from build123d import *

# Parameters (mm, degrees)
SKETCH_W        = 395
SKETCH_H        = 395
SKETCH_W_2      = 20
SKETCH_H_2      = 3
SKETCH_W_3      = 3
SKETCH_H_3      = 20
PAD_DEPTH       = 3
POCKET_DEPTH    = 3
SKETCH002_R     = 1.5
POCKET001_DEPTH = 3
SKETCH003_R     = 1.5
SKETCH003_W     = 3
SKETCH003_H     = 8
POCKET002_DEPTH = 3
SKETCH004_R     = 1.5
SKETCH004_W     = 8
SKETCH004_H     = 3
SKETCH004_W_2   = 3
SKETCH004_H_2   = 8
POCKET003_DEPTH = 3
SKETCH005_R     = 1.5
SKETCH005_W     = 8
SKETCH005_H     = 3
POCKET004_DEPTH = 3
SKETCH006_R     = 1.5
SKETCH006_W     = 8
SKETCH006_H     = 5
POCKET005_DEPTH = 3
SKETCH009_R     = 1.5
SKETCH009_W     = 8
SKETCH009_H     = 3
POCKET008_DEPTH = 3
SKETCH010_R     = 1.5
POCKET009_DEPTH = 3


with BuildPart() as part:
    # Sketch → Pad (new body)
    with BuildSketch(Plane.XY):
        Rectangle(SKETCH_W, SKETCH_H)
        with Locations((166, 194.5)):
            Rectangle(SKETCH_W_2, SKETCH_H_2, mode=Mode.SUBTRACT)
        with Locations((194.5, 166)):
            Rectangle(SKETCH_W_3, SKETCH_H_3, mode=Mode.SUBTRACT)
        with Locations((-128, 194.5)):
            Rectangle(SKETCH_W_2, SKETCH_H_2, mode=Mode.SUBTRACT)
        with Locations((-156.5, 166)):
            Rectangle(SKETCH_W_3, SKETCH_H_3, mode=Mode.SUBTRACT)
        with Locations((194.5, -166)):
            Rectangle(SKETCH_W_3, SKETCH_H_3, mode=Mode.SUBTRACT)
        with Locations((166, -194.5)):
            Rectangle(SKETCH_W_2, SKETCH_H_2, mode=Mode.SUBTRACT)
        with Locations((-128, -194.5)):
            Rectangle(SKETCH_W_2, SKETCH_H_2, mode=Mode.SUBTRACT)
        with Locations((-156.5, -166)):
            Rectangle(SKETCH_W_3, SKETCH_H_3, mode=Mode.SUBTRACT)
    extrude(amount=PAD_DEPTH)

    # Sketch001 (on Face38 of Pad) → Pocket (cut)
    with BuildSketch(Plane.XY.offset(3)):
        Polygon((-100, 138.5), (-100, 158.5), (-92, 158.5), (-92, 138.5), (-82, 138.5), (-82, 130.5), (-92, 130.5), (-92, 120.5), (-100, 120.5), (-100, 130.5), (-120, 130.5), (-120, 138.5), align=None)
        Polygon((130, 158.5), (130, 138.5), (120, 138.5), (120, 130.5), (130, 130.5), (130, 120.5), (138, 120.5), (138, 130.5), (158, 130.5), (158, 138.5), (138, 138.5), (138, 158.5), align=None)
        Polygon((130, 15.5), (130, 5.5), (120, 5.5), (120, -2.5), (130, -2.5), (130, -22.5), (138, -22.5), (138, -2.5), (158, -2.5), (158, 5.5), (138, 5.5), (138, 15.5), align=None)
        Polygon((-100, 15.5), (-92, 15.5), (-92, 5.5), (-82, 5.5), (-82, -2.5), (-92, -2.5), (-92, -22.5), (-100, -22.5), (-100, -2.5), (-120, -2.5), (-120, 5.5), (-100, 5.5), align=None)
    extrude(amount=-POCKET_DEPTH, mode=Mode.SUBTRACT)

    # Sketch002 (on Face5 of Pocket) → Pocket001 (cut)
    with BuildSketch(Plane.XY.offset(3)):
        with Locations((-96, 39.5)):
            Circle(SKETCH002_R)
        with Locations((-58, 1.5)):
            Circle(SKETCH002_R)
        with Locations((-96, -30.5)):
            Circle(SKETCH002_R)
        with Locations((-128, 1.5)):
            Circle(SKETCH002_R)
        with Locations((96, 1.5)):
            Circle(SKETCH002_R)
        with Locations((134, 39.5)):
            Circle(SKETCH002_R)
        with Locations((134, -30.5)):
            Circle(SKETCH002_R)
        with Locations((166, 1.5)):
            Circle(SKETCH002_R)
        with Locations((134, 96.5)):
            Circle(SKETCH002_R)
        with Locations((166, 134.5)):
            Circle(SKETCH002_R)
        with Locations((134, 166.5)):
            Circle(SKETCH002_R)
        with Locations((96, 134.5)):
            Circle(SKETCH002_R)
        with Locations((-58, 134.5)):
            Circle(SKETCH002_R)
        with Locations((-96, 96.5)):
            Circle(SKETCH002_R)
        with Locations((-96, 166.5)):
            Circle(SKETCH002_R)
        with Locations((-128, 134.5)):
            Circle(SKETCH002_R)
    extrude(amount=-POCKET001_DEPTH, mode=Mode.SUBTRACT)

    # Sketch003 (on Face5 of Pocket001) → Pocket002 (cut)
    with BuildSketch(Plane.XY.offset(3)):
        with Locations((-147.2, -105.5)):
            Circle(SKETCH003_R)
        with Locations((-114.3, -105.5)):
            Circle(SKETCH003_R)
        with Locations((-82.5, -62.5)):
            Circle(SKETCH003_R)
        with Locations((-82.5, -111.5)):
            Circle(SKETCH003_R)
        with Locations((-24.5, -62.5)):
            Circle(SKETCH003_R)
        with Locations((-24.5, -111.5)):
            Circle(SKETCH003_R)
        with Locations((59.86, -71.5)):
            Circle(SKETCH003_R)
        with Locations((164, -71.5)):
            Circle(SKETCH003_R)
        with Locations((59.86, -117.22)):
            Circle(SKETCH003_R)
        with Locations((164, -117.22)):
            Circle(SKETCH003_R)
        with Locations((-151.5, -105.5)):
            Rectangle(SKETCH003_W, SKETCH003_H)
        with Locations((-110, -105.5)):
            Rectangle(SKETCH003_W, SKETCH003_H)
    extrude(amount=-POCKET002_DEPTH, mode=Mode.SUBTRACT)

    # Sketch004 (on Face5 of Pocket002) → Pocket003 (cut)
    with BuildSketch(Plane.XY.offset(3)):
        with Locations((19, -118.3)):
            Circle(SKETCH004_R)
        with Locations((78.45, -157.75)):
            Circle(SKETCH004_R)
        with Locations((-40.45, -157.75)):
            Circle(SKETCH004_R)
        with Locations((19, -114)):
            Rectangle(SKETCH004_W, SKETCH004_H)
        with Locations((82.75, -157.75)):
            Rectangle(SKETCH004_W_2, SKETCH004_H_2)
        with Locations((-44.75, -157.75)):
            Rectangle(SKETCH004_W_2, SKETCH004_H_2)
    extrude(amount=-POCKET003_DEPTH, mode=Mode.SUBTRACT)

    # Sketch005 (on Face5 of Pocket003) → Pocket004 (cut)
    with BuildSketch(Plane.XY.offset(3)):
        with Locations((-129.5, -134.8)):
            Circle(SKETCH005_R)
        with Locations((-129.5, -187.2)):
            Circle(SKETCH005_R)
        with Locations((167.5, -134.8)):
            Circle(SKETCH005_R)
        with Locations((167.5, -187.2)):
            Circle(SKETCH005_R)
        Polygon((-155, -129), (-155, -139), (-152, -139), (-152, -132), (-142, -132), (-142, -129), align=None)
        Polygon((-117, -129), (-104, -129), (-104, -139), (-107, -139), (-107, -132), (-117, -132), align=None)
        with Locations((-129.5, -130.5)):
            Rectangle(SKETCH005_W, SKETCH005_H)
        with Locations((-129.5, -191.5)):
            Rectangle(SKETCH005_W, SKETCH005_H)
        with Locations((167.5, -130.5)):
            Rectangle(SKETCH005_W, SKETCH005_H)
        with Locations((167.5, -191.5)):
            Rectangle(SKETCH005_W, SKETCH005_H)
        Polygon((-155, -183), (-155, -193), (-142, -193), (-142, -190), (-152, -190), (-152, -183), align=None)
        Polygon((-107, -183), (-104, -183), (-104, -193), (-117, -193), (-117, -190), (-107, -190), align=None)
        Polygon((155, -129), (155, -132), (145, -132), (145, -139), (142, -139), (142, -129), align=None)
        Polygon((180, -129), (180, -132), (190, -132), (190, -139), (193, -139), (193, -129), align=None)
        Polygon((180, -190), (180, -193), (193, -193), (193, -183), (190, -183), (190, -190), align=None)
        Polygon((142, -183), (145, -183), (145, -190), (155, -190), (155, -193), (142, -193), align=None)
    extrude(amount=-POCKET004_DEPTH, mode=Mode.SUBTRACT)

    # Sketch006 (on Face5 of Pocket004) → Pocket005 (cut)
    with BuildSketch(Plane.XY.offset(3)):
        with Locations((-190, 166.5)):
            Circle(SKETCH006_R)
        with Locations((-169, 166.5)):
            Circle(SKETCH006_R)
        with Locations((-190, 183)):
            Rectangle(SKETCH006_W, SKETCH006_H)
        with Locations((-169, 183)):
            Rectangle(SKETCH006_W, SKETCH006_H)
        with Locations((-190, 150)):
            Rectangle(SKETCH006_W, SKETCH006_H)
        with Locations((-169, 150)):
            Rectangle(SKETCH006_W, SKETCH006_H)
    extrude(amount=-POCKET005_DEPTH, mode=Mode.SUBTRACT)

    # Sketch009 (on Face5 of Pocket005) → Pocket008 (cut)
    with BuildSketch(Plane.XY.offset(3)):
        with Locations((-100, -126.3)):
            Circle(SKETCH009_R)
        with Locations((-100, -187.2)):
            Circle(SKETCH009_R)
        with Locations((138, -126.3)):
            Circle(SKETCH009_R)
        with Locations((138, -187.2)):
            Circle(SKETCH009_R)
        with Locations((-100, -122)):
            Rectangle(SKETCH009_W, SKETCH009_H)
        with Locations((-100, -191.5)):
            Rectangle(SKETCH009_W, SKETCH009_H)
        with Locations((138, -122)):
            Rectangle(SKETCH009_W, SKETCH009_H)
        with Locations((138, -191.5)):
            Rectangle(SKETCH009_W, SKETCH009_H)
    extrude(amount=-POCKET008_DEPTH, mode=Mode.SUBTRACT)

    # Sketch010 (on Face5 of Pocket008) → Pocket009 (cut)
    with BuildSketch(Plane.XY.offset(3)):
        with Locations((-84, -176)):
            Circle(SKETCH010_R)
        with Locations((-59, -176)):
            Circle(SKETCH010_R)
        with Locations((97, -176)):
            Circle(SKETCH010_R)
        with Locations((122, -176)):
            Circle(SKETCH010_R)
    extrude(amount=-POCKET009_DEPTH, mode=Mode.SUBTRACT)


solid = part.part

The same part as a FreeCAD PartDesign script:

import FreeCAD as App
import Part
import Sketcher
from FreeCAD import Vector


def add_polygon(sketch, points):
    """Adds a closed chain of lines whose ends are joined by coincident constraints."""
    first, n = sketch.GeometryCount, len(points)
    for a, b in zip(points, points[1:] + points[:1]):
        sketch.addGeometry(Part.LineSegment(App.Vector(*a, 0), App.Vector(*b, 0)), False)
    for i in range(n):
        sketch.addConstraint(Sketcher.Constraint("Coincident", first + i, 2, first + (i + 1) % n, 1))

doc = App.newDocument("Part")
params = doc.addObject("Spreadsheet::Sheet", "Params")
for row, (alias, value) in enumerate([
    ("sketch1_width", "395 mm"),
    ("sketch1_width2", "20 mm"),
    ("sketch1_width3", "3 mm"),
    ("pad1_length", "3 mm"),
    ("sketch2_width", "20 mm"),
    ("sketch2_width2", "8 mm"),
    ("sketch2_width3", "10 mm"),
    ("pocket1_length", "3 mm"),
    ("sketch3_diameter", "3 mm"),
    ("pocket2_length", "3 mm"),
    ("sketch4_diameter", "3 mm"),
    ("sketch4_width", "3 mm"),
    ("sketch4_height", "8 mm"),
    ("pocket3_length", "3 mm"),
    ("sketch5_diameter", "3 mm"),
    ("sketch5_width", "8 mm"),
    ("sketch5_width2", "3 mm"),
    ("pocket4_length", "3 mm"),
    ("sketch6_diameter", "3 mm"),
    ("sketch6_width", "3 mm"),
    ("sketch6_width2", "10 mm"),
    ("sketch6_width3", "8 mm"),
    ("pocket5_length", "3 mm"),
    ("sketch7_diameter", "3 mm"),
    ("sketch7_width", "8 mm"),
    ("sketch7_height", "5 mm"),
    ("pocket6_length", "3 mm"),
    ("sketch8_diameter", "3 mm"),
    ("sketch8_width", "8 mm"),
    ("sketch8_height", "3 mm"),
    ("pocket7_length", "3 mm"),
    ("sketch9_diameter", "3 mm"),
    ("pocket8_length", "3 mm"),
], start=1):
    params.set(f"A{row}", alias)
    params.set(f"B{row}", "=" + value)
    params.setAlias(f"B{row}", alias)

body = doc.addObject("PartDesign::Body", "Body")

sketch1 = body.newObject("Sketcher::SketchObject", "Sketch")
sketch1.AttachmentSupport = (doc.getObject("XY_Plane"), [""])
sketch1.MapMode = "FlatFace"
add_polygon(sketch1, [(-197.5, 197.5), (-197.5, -197.5), (197.5, -197.5), (197.5, 197.5)])
add_polygon(sketch1, [(-118, -196), (-138, -196), (-138, -193), (-118, -193)])
add_polygon(sketch1, [(-155, -176), (-158, -176), (-158, -156), (-155, -156)])
add_polygon(sketch1, [(176, -196), (156, -196), (156, -193), (176, -193)])
add_polygon(sketch1, [(196, -176), (193, -176), (193, -156), (196, -156)])
add_polygon(sketch1, [(-155, 156), (-158, 156), (-158, 176), (-155, 176)])
add_polygon(sketch1, [(-118, 193), (-138, 193), (-138, 196), (-118, 196)])
add_polygon(sketch1, [(196, 156), (193, 156), (193, 176), (196, 176)])
add_polygon(sketch1, [(176, 193), (156, 193), (156, 196), (176, 196)])
sketch1.addConstraint([
    Sketcher.Constraint("Vertical", 0),
    Sketcher.Constraint("Horizontal", 1),
    Sketcher.Constraint("Vertical", 2),
    Sketcher.Constraint("Horizontal", 3),
    Sketcher.Constraint("Horizontal", 4),
    Sketcher.Constraint("Vertical", 5),
    Sketcher.Constraint("Horizontal", 6),
    Sketcher.Constraint("Vertical", 7),
    Sketcher.Constraint("Horizontal", 8),
    Sketcher.Constraint("Vertical", 9),
    Sketcher.Constraint("Horizontal", 10),
    Sketcher.Constraint("Vertical", 11),
    Sketcher.Constraint("Horizontal", 12),
    Sketcher.Constraint("Vertical", 13),
    Sketcher.Constraint("Horizontal", 14),
    Sketcher.Constraint("Vertical", 15),
    Sketcher.Constraint("Horizontal", 16),
    Sketcher.Constraint("Vertical", 17),
    Sketcher.Constraint("Horizontal", 18),
    Sketcher.Constraint("Vertical", 19),
    Sketcher.Constraint("Horizontal", 20),
    Sketcher.Constraint("Vertical", 21),
    Sketcher.Constraint("Horizontal", 22),
    Sketcher.Constraint("Vertical", 23),
    Sketcher.Constraint("Horizontal", 24),
    Sketcher.Constraint("Vertical", 25),
    Sketcher.Constraint("Horizontal", 26),
    Sketcher.Constraint("Vertical", 27),
    Sketcher.Constraint("Horizontal", 28),
    Sketcher.Constraint("Vertical", 29),
    Sketcher.Constraint("Horizontal", 30),
    Sketcher.Constraint("Vertical", 31),
    Sketcher.Constraint("Horizontal", 32),
    Sketcher.Constraint("Vertical", 33),
    Sketcher.Constraint("Horizontal", 34),
    Sketcher.Constraint("Vertical", 35),
    Sketcher.Constraint("Symmetric", 0, 2, 2, 2, -1, 1),
    Sketcher.Constraint("Symmetric", 9, 2, 20, 2, -1),
    Sketcher.Constraint("Symmetric", 11, 2, 22, 2, -1),
    Sketcher.Constraint("Symmetric", 5, 2, 24, 2, -1),
    Sketcher.Constraint("Symmetric", 7, 2, 26, 2, -1),
    Sketcher.Constraint("Symmetric", 17, 2, 28, 2, -1),
    Sketcher.Constraint("Symmetric", 19, 2, 30, 2, -1),
    Sketcher.Constraint("Symmetric", 13, 2, 32, 2, -1),
    Sketcher.Constraint("Symmetric", 15, 2, 34, 2, -1),
    Sketcher.Constraint("Horizontal", 7, 2, 12, 2),
    Sketcher.Constraint("Horizontal", 6, 2, 13, 2),
    Sketcher.Constraint("Horizontal", 11, 2, 16, 2),
    Sketcher.Constraint("Horizontal", 10, 2, 17, 2),
    Sketcher.Constraint("Equal", 6, 12),
    Sketcher.Constraint("Equal", 10, 16),
    Sketcher.Constraint("Equal", 3, 0),
    Sketcher.Constraint("Equal", 30, 5),
    Sketcher.Constraint("Equal", 34, 9),
    Sketcher.Constraint("DistanceX", 1, 1, 1, 2, 395.0),
    Sketcher.Constraint("DistanceX", 4, 2, 4, 1, 20.0),
    Sketcher.Constraint("DistanceX", 8, 2, 8, 1, 3.0),
    Sketcher.Constraint("DistanceX", 4, 2, -1, 1, 138.0),
    Sketcher.Constraint("DistanceY", 4, 2, -1, 1, 196.0),
    Sketcher.Constraint("DistanceX", 8, 2, -1, 1, 158.0),
    Sketcher.Constraint("DistanceY", 8, 2, -1, 1, 176.0),
    Sketcher.Constraint("DistanceX", -1, 1, 12, 2, 156.0),
    Sketcher.Constraint("DistanceX", -1, 1, 16, 2, 193.0),
])
sketch1.setExpression("Constraints[90]", "Params.sketch1_width")
sketch1.setExpression("Constraints[91]", "Params.sketch1_width2")
sketch1.setExpression("Constraints[92]", "Params.sketch1_width3")
pad1 = body.newObject("PartDesign::Pad", "Pad")
pad1.Profile = sketch1
pad1.setExpression("Length", "Params.pad1_length")

sketch2 = body.newObject("Sketcher::SketchObject", "Sketch001")
sketch2.AttachmentSupport = (doc.getObject("XY_Plane"), [""])
sketch2.MapMode = "FlatFace"
sketch2.AttachmentOffset = App.Placement(Vector(0, 0, 3), App.Rotation())
add_polygon(sketch2, [(-100, 158.5), (-100, 138.5), (-120, 138.5), (-120, 130.5), (-100, 130.5), (-100, 120.5), (-92, 120.5), (-92, 130.5), (-82, 130.5), (-82, 138.5), (-92, 138.5), (-92, 158.5)])
add_polygon(sketch2, [(130, 158.5), (130, 138.5), (120, 138.5), (120, 130.5), (130, 130.5), (130, 120.5), (138, 120.5), (138, 130.5), (158, 130.5), (158, 138.5), (138, 138.5), (138, 158.5)])
add_polygon(sketch2, [(130, 15.5), (130, 5.5), (120, 5.5), (120, -2.5), (130, -2.5), (130, -22.5), (138, -22.5), (138, -2.5), (158, -2.5), (158, 5.5), (138, 5.5), (138, 15.5)])
add_polygon(sketch2, [(-92, 15.5), (-100, 15.5), (-100, 5.5), (-120, 5.5), (-120, -2.5), (-100, -2.5), (-100, -22.5), (-92, -22.5), (-92, -2.5), (-82, -2.5), (-82, 5.5), (-92, 5.5)])
sketch2.addConstraint([
    Sketcher.Constraint("Vertical", 0),
    Sketcher.Constraint("Horizontal", 1),
    Sketcher.Constraint("Vertical", 2),
    Sketcher.Constraint("Horizontal", 3),
    Sketcher.Constraint("Vertical", 4),
    Sketcher.Constraint("Horizontal", 5),
    Sketcher.Constraint("Vertical", 6),
    Sketcher.Constraint("Horizontal", 7),
    Sketcher.Constraint("Vertical", 8),
    Sketcher.Constraint("Horizontal", 9),
    Sketcher.Constraint("Vertical", 10),
    Sketcher.Constraint("Horizontal", 11),
    Sketcher.Constraint("Vertical", 12),
    Sketcher.Constraint("Horizontal", 13),
    Sketcher.Constraint("Vertical", 14),
    Sketcher.Constraint("Horizontal", 15),
    Sketcher.Constraint("Vertical", 16),
    Sketcher.Constraint("Horizontal", 17),
    Sketcher.Constraint("Vertical", 18),
    Sketcher.Constraint("Horizontal", 19),
    Sketcher.Constraint("Vertical", 20),
    Sketcher.Constraint("Horizontal", 21),
    Sketcher.Constraint("Vertical", 22),
    Sketcher.Constraint("Horizontal", 23),
    Sketcher.Constraint("Vertical", 24),
    Sketcher.Constraint("Horizontal", 25),
    Sketcher.Constraint("Vertical", 26),
    Sketcher.Constraint("Horizontal", 27),
    Sketcher.Constraint("Vertical", 28),
    Sketcher.Constraint("Horizontal", 29),
    Sketcher.Constraint("Vertical", 30),
    Sketcher.Constraint("Horizontal", 31),
    Sketcher.Constraint("Vertical", 32),
    Sketcher.Constraint("Horizontal", 33),
    Sketcher.Constraint("Vertical", 34),
    Sketcher.Constraint("Horizontal", 35),
    Sketcher.Constraint("Horizontal", 36),
    Sketcher.Constraint("Vertical", 37),
    Sketcher.Constraint("Horizontal", 38),
    Sketcher.Constraint("Vertical", 39),
    Sketcher.Constraint("Horizontal", 40),
    Sketcher.Constraint("Vertical", 41),
    Sketcher.Constraint("Horizontal", 42),
    Sketcher.Constraint("Vertical", 43),
    Sketcher.Constraint("Horizontal", 44),
    Sketcher.Constraint("Vertical", 45),
    Sketcher.Constraint("Horizontal", 46),
    Sketcher.Constraint("Vertical", 47),
    Sketcher.Constraint("Symmetric", 1, 2, 13, 2, -2),
    Sketcher.Constraint("Symmetric", 25, 2, 38, 2, -2),
    Sketcher.Constraint("Horizontal", 3, 2, 6, 2),
    Sketcher.Constraint("Horizontal", 1, 2, 8, 2),
    Sketcher.Constraint("Horizontal", 7, 2, 14, 2),
    Sketcher.Constraint("Horizontal", 5, 2, 16, 2),
    Sketcher.Constraint("Horizontal", 15, 2, 18, 2),
    Sketcher.Constraint("Horizontal", 13, 2, 20, 2),
    Sketcher.Constraint("Horizontal", 11, 2, 22, 2),
    Sketcher.Constraint("Horizontal", 27, 2, 30, 2),
    Sketcher.Constraint("Horizontal", 25, 2, 32, 2),
    Sketcher.Constraint("Horizontal", 35, 2, 36, 2),
    Sketcher.Constraint("Horizontal", 31, 2, 39, 2),
    Sketcher.Constraint("Horizontal", 29, 2, 41, 2),
    Sketcher.Constraint("Horizontal", 40, 2, 43, 2),
    Sketcher.Constraint("Horizontal", 38, 2, 45, 2),
    Sketcher.Constraint("Vertical", 0, 2, 3, 2),
    Sketcher.Constraint("Vertical", 6, 2, 9, 2),
    Sketcher.Constraint("Vertical", 12, 2, 15, 2),
    Sketcher.Constraint("Vertical", 18, 2, 21, 2),
    Sketcher.Constraint("Vertical", 23, 2, 24, 2),
    Sketcher.Constraint("Vertical", 14, 2, 25, 2),
    Sketcher.Constraint("Vertical", 24, 2, 27, 2),
    Sketcher.Constraint("Vertical", 22, 2, 29, 2),
    Sketcher.Constraint("Vertical", 20, 2, 31, 2),
    Sketcher.Constraint("Vertical", 30, 2, 33, 2),
    Sketcher.Constraint("Vertical", 11, 2, 36, 2),
    Sketcher.Constraint("Vertical", 37, 2, 40, 2),
    Sketcher.Constraint("Vertical", 10, 2, 42, 2),
    Sketcher.Constraint("Vertical", 8, 2, 44, 2),
    Sketcher.Constraint("Vertical", 43, 2, 46, 2),
    Sketcher.Constraint("Equal", 9, 13),
    Sketcher.Constraint("Equal", 11, 17),
    Sketcher.Constraint("Equal", 3, 19),
    Sketcher.Constraint("Equal", 40, 0),
    Sketcher.Constraint("Equal", 42, 2),
    Sketcher.Constraint("Equal", 46, 4),
    Sketcher.Constraint("Equal", 18, 24),
    Sketcher.Constraint("Equal", 20, 26),
    Sketcher.Constraint("Equal", 22, 28),
    Sketcher.Constraint("DistanceX", 1, 2, 1, 1, 20.0),
    Sketcher.Constraint("DistanceX", 5, 1, 5, 2, 8.0),
    Sketcher.Constraint("DistanceX", 7, 1, 7, 2, 10.0),
    Sketcher.Constraint("DistanceX", 0, 2, -1, 1, 100.0),
    Sketcher.Constraint("DistanceY", 24, 2, 16, 2, 115.0),
    Sketcher.Constraint("DistanceY", -1, 1, 0, 2, 138.5),
])
sketch2.setExpression("Constraints[136]", "Params.sketch2_width")
sketch2.setExpression("Constraints[137]", "Params.sketch2_width2")
sketch2.setExpression("Constraints[138]", "Params.sketch2_width3")
pocket1 = body.newObject("PartDesign::Pocket", "Pocket")
pocket1.Profile = sketch2
pocket1.setExpression("Length", "Params.pocket1_length")

sketch3 = body.newObject("Sketcher::SketchObject", "Sketch002")
sketch3.AttachmentSupport = (doc.getObject("XY_Plane"), [""])
sketch3.MapMode = "FlatFace"
sketch3.AttachmentOffset = App.Placement(Vector(0, 0, 3), App.Rotation())
sketch3.addGeometry([
    Part.Circle(Vector(-96, 39.5, 0), Vector(0, 0, 1), 1.5),
    Part.Circle(Vector(-58, 1.5, 0), Vector(0, 0, 1), 1.5),
    Part.Circle(Vector(-96, -30.5, 0), Vector(0, 0, 1), 1.5),
    Part.Circle(Vector(-128, 1.5, 0), Vector(0, 0, 1), 1.5),
    Part.Circle(Vector(96, 1.5, 0), Vector(0, 0, 1), 1.5),
    Part.Circle(Vector(134, 39.5, 0), Vector(0, 0, 1), 1.5),
    Part.Circle(Vector(134, -30.5, 0), Vector(0, 0, 1), 1.5),
    Part.Circle(Vector(166, 1.5, 0), Vector(0, 0, 1), 1.5),
    Part.Circle(Vector(134, 96.5, 0), Vector(0, 0, 1), 1.5),
    Part.Circle(Vector(166, 134.5, 0), Vector(0, 0, 1), 1.5),
    Part.Circle(Vector(134, 166.5, 0), Vector(0, 0, 1), 1.5),
    Part.Circle(Vector(96, 134.5, 0), Vector(0, 0, 1), 1.5),
    Part.Circle(Vector(-58, 134.5, 0), Vector(0, 0, 1), 1.5),
    Part.Circle(Vector(-96, 96.5, 0), Vector(0, 0, 1), 1.5),
    Part.Circle(Vector(-96, 166.5, 0), Vector(0, 0, 1), 1.5),
    Part.Circle(Vector(-128, 134.5, 0), Vector(0, 0, 1), 1.5),
], False)
sketch3.addConstraint([
    Sketcher.Constraint("Equal", 0, 1),
    Sketcher.Constraint("Equal", 1, 2),
    Sketcher.Constraint("Equal", 2, 3),
    Sketcher.Constraint("Equal", 3, 4),
    Sketcher.Constraint("Equal", 4, 5),
    Sketcher.Constraint("Equal", 5, 6),
    Sketcher.Constraint("Equal", 6, 7),
    Sketcher.Constraint("Equal", 7, 8),
    Sketcher.Constraint("Equal", 8, 9),
    Sketcher.Constraint("Equal", 9, 10),
    Sketcher.Constraint("Equal", 10, 11),
    Sketcher.Constraint("Equal", 11, 12),
    Sketcher.Constraint("Equal", 12, 13),
    Sketcher.Constraint("Equal", 13, 14),
    Sketcher.Constraint("Equal", 14, 15),
    Sketcher.Constraint("Horizontal", 1, 3, 3, 3),
    Sketcher.Constraint("Horizontal", 3, 3, 4, 3),
    Sketcher.Constraint("Horizontal", 0, 3, 5, 3),
    Sketcher.Constraint("Horizontal", 2, 3, 6, 3),
    Sketcher.Constraint("Horizontal", 4, 3, 7, 3),
    Sketcher.Constraint("Horizontal", 9, 3, 11, 3),
    Sketcher.Constraint("Horizontal", 11, 3, 12, 3),
    Sketcher.Constraint("Horizontal", 8, 3, 13, 3),
    Sketcher.Constraint("Horizontal", 10, 3, 14, 3),
    Sketcher.Constraint("Horizontal", 12, 3, 15, 3),
    Sketcher.Constraint("Vertical", 0, 3, 2, 3),
    Sketcher.Constraint("Vertical", 5, 3, 6, 3),
    Sketcher.Constraint("Vertical", 6, 3, 8, 3),
    Sketcher.Constraint("Vertical", 7, 3, 9, 3),
    Sketcher.Constraint("Vertical", 8, 3, 10, 3),
    Sketcher.Constraint("Vertical", 4, 3, 11, 3),
    Sketcher.Constraint("Vertical", 1, 3, 12, 3),
    Sketcher.Constraint("Vertical", 2, 3, 13, 3),
    Sketcher.Constraint("Vertical", 13, 3, 14, 3),
    Sketcher.Constraint("Vertical", 3, 3, 15, 3),
    Sketcher.Constraint("Diameter", 0, 3.0),
    Sketcher.Constraint("DistanceX", 0, 3, -1, 1, 96.0),
    Sketcher.Constraint("DistanceX", 1, 3, -1, 1, 58.0),
    Sketcher.Constraint("DistanceX", 3, 3, -1, 1, 128.0),
    Sketcher.Constraint("DistanceX", -1, 1, 4, 3, 96.0),
    Sketcher.Constraint("DistanceX", -1, 1, 5, 3, 134.0),
    Sketcher.Constraint("DistanceX", -1, 1, 7, 3, 166.0),
    Sketcher.Constraint("DistanceY", 1, 3, 0, 3, 38.0),
    Sketcher.Constraint("DistanceY", 2, 3, 1, 3, 32.0),
    Sketcher.Constraint("DistanceY", 5, 3, 8, 3, 57.0),
    Sketcher.Constraint("DistanceY", 8, 3, 9, 3, 38.0),
    Sketcher.Constraint("DistanceY", 9, 3, 10, 3, 32.0),
    Sketcher.Constraint("DistanceY", -1, 1, 0, 3, 39.5),
])
sketch3.setExpression("Constraints[35]", "Params.sketch3_diameter")
pocket2 = body.newObject("PartDesign::Pocket", "Pocket001")
pocket2.Profile = sketch3
pocket2.setExpression("Length", "Params.pocket2_length")

sketch4 = body.newObject("Sketcher::SketchObject", "Sketch003")
sketch4.AttachmentSupport = (doc.getObject("XY_Plane"), [""])
sketch4.MapMode = "FlatFace"
sketch4.AttachmentOffset = App.Placement(Vector(0, 0, 3), App.Rotation())
sketch4.addGeometry(Part.Circle(Vector(-147.2, -105.5, 0), Vector(0, 0, 1), 1.5), False)
sketch4.addGeometry(Part.Circle(Vector(-114.3, -105.5, 0), Vector(0, 0, 1), 1.5), False)
sketch4.addGeometry(Part.Circle(Vector(-82.5, -62.5, 0), Vector(0, 0, 1), 1.5), False)
sketch4.addGeometry(Part.Circle(Vector(-82.5, -111.5, 0), Vector(0, 0, 1), 1.5), False)
sketch4.addGeometry(Part.Circle(Vector(-24.5, -62.5, 0), Vector(0, 0, 1), 1.5), False)
sketch4.addGeometry(Part.Circle(Vector(-24.5, -111.5, 0), Vector(0, 0, 1), 1.5), False)
sketch4.addGeometry(Part.Circle(Vector(59.86, -71.5, 0), Vector(0, 0, 1), 1.5), False)
sketch4.addGeometry(Part.Circle(Vector(164, -71.5, 0), Vector(0, 0, 1), 1.5), False)
sketch4.addGeometry(Part.Circle(Vector(59.86, -117.22, 0), Vector(0, 0, 1), 1.5), False)
sketch4.addGeometry(Part.Circle(Vector(164, -117.22, 0), Vector(0, 0, 1), 1.5), False)
add_polygon(sketch4, [(-153, -101.5), (-153, -109.5), (-150, -109.5), (-150, -101.5)])
add_polygon(sketch4, [(-111.5, -101.5), (-111.5, -109.5), (-108.5, -109.5), (-108.5, -101.5)])
sketch4.addConstraint([
    Sketcher.Constraint("Vertical", 10),
    Sketcher.Constraint("Horizontal", 11),
    Sketcher.Constraint("Vertical", 12),
    Sketcher.Constraint("Horizontal", 13),
    Sketcher.Constraint("Vertical", 14),
    Sketcher.Constraint("Horizontal", 15),
    Sketcher.Constraint("Vertical", 16),
    Sketcher.Constraint("Horizontal", 17),
    Sketcher.Constraint("Equal", 0, 1),
    Sketcher.Constraint("Equal", 1, 2),
    Sketcher.Constraint("Equal", 2, 3),
    Sketcher.Constraint("Equal", 3, 4),
    Sketcher.Constraint("Equal", 4, 5),
    Sketcher.Constraint("Equal", 5, 6),
    Sketcher.Constraint("Equal", 6, 7),
    Sketcher.Constraint("Equal", 7, 8),
    Sketcher.Constraint("Equal", 8, 9),
    Sketcher.Constraint("Horizontal", 0, 3, 1, 3),
    Sketcher.Constraint("Horizontal", 2, 3, 4, 3),
    Sketcher.Constraint("Horizontal", 3, 3, 5, 3),
    Sketcher.Constraint("Horizontal", 6, 3, 7, 3),
    Sketcher.Constraint("Horizontal", 8, 3, 9, 3),
    Sketcher.Constraint("Horizontal", 11, 2, 14, 2),
    Sketcher.Constraint("Horizontal", 13, 2, 16, 2),
    Sketcher.Constraint("Vertical", 2, 3, 3, 3),
    Sketcher.Constraint("Vertical", 4, 3, 5, 3),
    Sketcher.Constraint("Vertical", 6, 3, 8, 3),
    Sketcher.Constraint("Vertical", 7, 3, 9, 3),
    Sketcher.Constraint("Equal", 13, 15),
    Sketcher.Constraint("Diameter", 0, 3.0),
    Sketcher.Constraint("DistanceX", 11, 1, 11, 2, 3.0),
    Sketcher.Constraint("DistanceY", 10, 2, 10, 1, 8.0),
    Sketcher.Constraint("DistanceX", -1, 1, 7, 3, 164.0),
    Sketcher.Constraint("DistanceX", 10, 2, -1, 1, 153.0),
    Sketcher.Constraint("DistanceY", 1, 3, 2, 3, 43.0),
    Sketcher.Constraint("DistanceY", 3, 3, 1, 3, 6.0),
    Sketcher.Constraint("DistanceX", 2, 3, 4, 3, 58.0),
    Sketcher.Constraint("DistanceY", 6, 3, 4, 3, 9.0),
    Sketcher.Constraint("DistanceY", 10, 2, 0, 3, 4.0),
    Sketcher.Constraint("DistanceX", 14, 2, 3, 3, 29.0),
    Sketcher.Constraint("DistanceX", 0, 3, -1, 1, 147.2),
    Sketcher.Constraint("DistanceY", 0, 3, -1, 1, 105.5),
    Sketcher.Constraint("DistanceX", 1, 3, -1, 1, 114.3),
    Sketcher.Constraint("DistanceX", 2, 3, -1, 1, 82.5),
    Sketcher.Constraint("DistanceX", -1, 1, 6, 3, 59.86),
    Sketcher.Constraint("DistanceY", 8, 3, -1, 1, 117.22),
])
sketch4.setExpression("Constraints[37]", "Params.sketch4_diameter")
sketch4.setExpression("Constraints[38]", "Params.sketch4_width")
sketch4.setExpression("Constraints[39]", "Params.sketch4_height")
pocket3 = body.newObject("PartDesign::Pocket", "Pocket002")
pocket3.Profile = sketch4
pocket3.setExpression("Length", "Params.pocket3_length")

sketch5 = body.newObject("Sketcher::SketchObject", "Sketch004")
sketch5.AttachmentSupport = (doc.getObject("XY_Plane"), [""])
sketch5.MapMode = "FlatFace"
sketch5.AttachmentOffset = App.Placement(Vector(0, 0, 3), App.Rotation())
sketch5.addGeometry(Part.Circle(Vector(19, -118.3, 0), Vector(0, 0, 1), 1.5), False)
sketch5.addGeometry(Part.Circle(Vector(78.45, -157.75, 0), Vector(0, 0, 1), 1.5), False)
sketch5.addGeometry(Part.Circle(Vector(-40.45, -157.75, 0), Vector(0, 0, 1), 1.5), False)
add_polygon(sketch5, [(15, -112.5), (15, -115.5), (23, -115.5), (23, -112.5)])
add_polygon(sketch5, [(81.25, -153.75), (81.25, -161.75), (84.25, -161.75), (84.25, -153.75)])
add_polygon(sketch5, [(-46.25, -153.75), (-46.25, -161.75), (-43.25, -161.75), (-43.25, -153.75)])
sketch5.addConstraint([
    Sketcher.Constraint("Vertical", 3),
    Sketcher.Constraint("Horizontal", 4),
    Sketcher.Constraint("Vertical", 5),
    Sketcher.Constraint("Horizontal", 6),
    Sketcher.Constraint("Vertical", 7),
    Sketcher.Constraint("Horizontal", 8),
    Sketcher.Constraint("Vertical", 9),
    Sketcher.Constraint("Horizontal", 10),
    Sketcher.Constraint("Vertical", 11),
    Sketcher.Constraint("Horizontal", 12),
    Sketcher.Constraint("Vertical", 13),
    Sketcher.Constraint("Horizontal", 14),
    Sketcher.Constraint("Equal", 0, 1),
    Sketcher.Constraint("Equal", 1, 2),
    Sketcher.Constraint("Horizontal", 1, 3, 2, 3),
    Sketcher.Constraint("Horizontal", 8, 2, 11, 2),
    Sketcher.Constraint("Horizontal", 10, 2, 13, 2),
    Sketcher.Constraint("Equal", 10, 12),
    Sketcher.Constraint("Equal", 14, 3),
    Sketcher.Constraint("Equal", 6, 7),
    Sketcher.Constraint("Diameter", 0, 3.0),
    Sketcher.Constraint("DistanceX", 4, 1, 4, 2, 8.0),
    Sketcher.Constraint("DistanceX", 8, 1, 8, 2, 3.0),
    Sketcher.Constraint("DistanceX", -1, 1, 0, 3, 19.0),
    Sketcher.Constraint("DistanceX", -1, 1, 3, 2, 15.0),
    Sketcher.Constraint("DistanceY", 7, 2, 1, 3, 4.0),
    Sketcher.Constraint("DistanceY", 0, 3, -1, 1, 118.3),
    Sketcher.Constraint("DistanceY", 3, 2, -1, 1, 115.5),
    Sketcher.Constraint("DistanceX", 2, 3, 1, 3, 118.9),
    Sketcher.Constraint("DistanceX", 1, 3, 7, 2, 2.8),
    Sketcher.Constraint("DistanceX", 11, 2, 2, 3, 5.8),
    Sketcher.Constraint("DistanceX", -1, 1, 1, 3, 78.45),
    Sketcher.Constraint("DistanceY", 1, 3, -1, 1, 157.75),
])
sketch5.setExpression("Constraints[32]", "Params.sketch5_diameter")
sketch5.setExpression("Constraints[33]", "Params.sketch5_width")
sketch5.setExpression("Constraints[34]", "Params.sketch5_width2")
pocket4 = body.newObject("PartDesign::Pocket", "Pocket003")
pocket4.Profile = sketch5
pocket4.setExpression("Length", "Params.pocket4_length")

sketch6 = body.newObject("Sketcher::SketchObject", "Sketch005")
sketch6.AttachmentSupport = (doc.getObject("XY_Plane"), [""])
sketch6.MapMode = "FlatFace"
sketch6.AttachmentOffset = App.Placement(Vector(0, 0, 3), App.Rotation())
sketch6.addGeometry(Part.Circle(Vector(-129.5, -134.8, 0), Vector(0, 0, 1), 1.5), False)
sketch6.addGeometry(Part.Circle(Vector(-129.5, -187.2, 0), Vector(0, 0, 1), 1.5), False)
sketch6.addGeometry(Part.Circle(Vector(167.5, -134.8, 0), Vector(0, 0, 1), 1.5), False)
sketch6.addGeometry(Part.Circle(Vector(167.5, -187.2, 0), Vector(0, 0, 1), 1.5), False)
add_polygon(sketch6, [(-155, -129), (-155, -139), (-152, -139), (-152, -132), (-142, -132), (-142, -129)])
add_polygon(sketch6, [(-104, -129), (-117, -129), (-117, -132), (-107, -132), (-107, -139), (-104, -139)])
add_polygon(sketch6, [(-133.5, -129), (-133.5, -132), (-125.5, -132), (-125.5, -129)])
add_polygon(sketch6, [(-133.5, -190), (-133.5, -193), (-125.5, -193), (-125.5, -190)])
add_polygon(sketch6, [(163.5, -129), (163.5, -132), (171.5, -132), (171.5, -129)])
add_polygon(sketch6, [(163.5, -190), (163.5, -193), (171.5, -193), (171.5, -190)])
add_polygon(sketch6, [(-155, -183), (-155, -193), (-142, -193), (-142, -190), (-152, -190), (-152, -183)])
add_polygon(sketch6, [(-104, -183), (-107, -183), (-107, -190), (-117, -190), (-117, -193), (-104, -193)])
add_polygon(sketch6, [(155, -132), (155, -129), (142, -129), (142, -139), (145, -139), (145, -132)])
add_polygon(sketch6, [(180, -129), (180, -132), (190, -132), (190, -139), (193, -139), (193, -129)])
add_polygon(sketch6, [(180, -190), (180, -193), (193, -193), (193, -183), (190, -183), (190, -190)])
add_polygon(sketch6, [(145, -183), (142, -183), (142, -193), (155, -193), (155, -190), (145, -190)])
sketch6.addConstraint([
    Sketcher.Constraint("Vertical", 4),
    Sketcher.Constraint("Horizontal", 5),
    Sketcher.Constraint("Vertical", 6),
    Sketcher.Constraint("Horizontal", 7),
    Sketcher.Constraint("Vertical", 8),
    Sketcher.Constraint("Horizontal", 9),
    Sketcher.Constraint("Horizontal", 10),
    Sketcher.Constraint("Vertical", 11),
    Sketcher.Constraint("Horizontal", 12),
    Sketcher.Constraint("Vertical", 13),
    Sketcher.Constraint("Horizontal", 14),
    Sketcher.Constraint("Vertical", 15),
    Sketcher.Constraint("Vertical", 16),
    Sketcher.Constraint("Horizontal", 17),
    Sketcher.Constraint("Vertical", 18),
    Sketcher.Constraint("Horizontal", 19),
    Sketcher.Constraint("Vertical", 20),
    Sketcher.Constraint("Horizontal", 21),
    Sketcher.Constraint("Vertical", 22),
    Sketcher.Constraint("Horizontal", 23),
    Sketcher.Constraint("Vertical", 24),
    Sketcher.Constraint("Horizontal", 25),
    Sketcher.Constraint("Vertical", 26),
    Sketcher.Constraint("Horizontal", 27),
    Sketcher.Constraint("Vertical", 28),
    Sketcher.Constraint("Horizontal", 29),
    Sketcher.Constraint("Vertical", 30),
    Sketcher.Constraint("Horizontal", 31),
    Sketcher.Constraint("Vertical", 32),
    Sketcher.Constraint("Horizontal", 33),
    Sketcher.Constraint("Vertical", 34),
    Sketcher.Constraint("Horizontal", 35),
    Sketcher.Constraint("Vertical", 36),
    Sketcher.Constraint("Horizontal", 37),
    Sketcher.Constraint("Horizontal", 38),
    Sketcher.Constraint("Vertical", 39),
    Sketcher.Constraint("Horizontal", 40),
    Sketcher.Constraint("Vertical", 41),
    Sketcher.Constraint("Horizontal", 42),
    Sketcher.Constraint("Vertical", 43),
    Sketcher.Constraint("Vertical", 44),
    Sketcher.Constraint("Horizontal", 45),
    Sketcher.Constraint("Vertical", 46),
    Sketcher.Constraint("Horizontal", 47),
    Sketcher.Constraint("Vertical", 48),
    Sketcher.Constraint("Horizontal", 49),
    Sketcher.Constraint("Vertical", 50),
    Sketcher.Constraint("Horizontal", 51),
    Sketcher.Constraint("Vertical", 52),
    Sketcher.Constraint("Horizontal", 53),
    Sketcher.Constraint("Vertical", 54),
    Sketcher.Constraint("Horizontal", 55),
    Sketcher.Constraint("Vertical", 56),
    Sketcher.Constraint("Horizontal", 57),
    Sketcher.Constraint("Vertical", 58),
    Sketcher.Constraint("Horizontal", 59),
    Sketcher.Constraint("Vertical", 60),
    Sketcher.Constraint("Horizontal", 61),
    Sketcher.Constraint("Horizontal", 62),
    Sketcher.Constraint("Vertical", 63),
    Sketcher.Constraint("Horizontal", 64),
    Sketcher.Constraint("Vertical", 65),
    Sketcher.Constraint("Horizontal", 66),
    Sketcher.Constraint("Vertical", 67),
    Sketcher.Constraint("Equal", 0, 1),
    Sketcher.Constraint("Equal", 1, 2),
    Sketcher.Constraint("Equal", 2, 3),
    Sketcher.Constraint("Symmetric", 9, 2, 44, 2, -2),
    Sketcher.Constraint("Symmetric", 33, 2, 63, 2, -2),
    Sketcher.Constraint("Horizontal", 0, 3, 2, 3),
    Sketcher.Constraint("Horizontal", 1, 3, 3, 3),
    Sketcher.Constraint("Horizontal", 9, 2, 10, 2),
    Sketcher.Constraint("Horizontal", 7, 2, 11, 2),
    Sketcher.Constraint("Horizontal", 5, 2, 13, 2),
    Sketcher.Constraint("Horizontal", 12, 2, 16, 2),
    Sketcher.Constraint("Horizontal", 15, 2, 18, 2),
    Sketcher.Constraint("Horizontal", 17, 2, 24, 2),
    Sketcher.Constraint("Horizontal", 19, 2, 26, 2),
    Sketcher.Constraint("Horizontal", 21, 2, 28, 2),
    Sketcher.Constraint("Horizontal", 23, 2, 30, 2),
    Sketcher.Constraint("Horizontal", 29, 2, 32, 2),
    Sketcher.Constraint("Horizontal", 31, 2, 34, 2),
    Sketcher.Constraint("Horizontal", 37, 2, 38, 2),
    Sketcher.Constraint("Horizontal", 35, 2, 39, 2),
    Sketcher.Constraint("Horizontal", 33, 2, 41, 2),
    Sketcher.Constraint("Horizontal", 14, 2, 46, 2),
    Sketcher.Constraint("Horizontal", 25, 2, 48, 2),
    Sketcher.Constraint("Horizontal", 49, 2, 50, 2),
    Sketcher.Constraint("Horizontal", 47, 2, 52, 2),
    Sketcher.Constraint("Horizontal", 45, 2, 54, 2),
    Sketcher.Constraint("Horizontal", 42, 2, 56, 2),
    Sketcher.Constraint("Horizontal", 43, 2, 58, 2),
    Sketcher.Constraint("Horizontal", 40, 2, 60, 2),
    Sketcher.Constraint("Horizontal", 59, 2, 62, 2),
    Sketcher.Constraint("Horizontal", 61, 2, 65, 2),
    Sketcher.Constraint("Vertical", 0, 3, 1, 3),
    Sketcher.Constraint("Vertical", 2, 3, 3, 3),
    Sketcher.Constraint("Vertical", 19, 2, 20, 2),
    Sketcher.Constraint("Vertical", 18, 2, 21, 2),
    Sketcher.Constraint("Vertical", 27, 2, 28, 2),
    Sketcher.Constraint("Vertical", 26, 2, 29, 2),
    Sketcher.Constraint("Vertical", 9, 2, 32, 2),
    Sketcher.Constraint("Vertical", 8, 2, 33, 2),
    Sketcher.Constraint("Vertical", 6, 2, 35, 2),
    Sketcher.Constraint("Vertical", 13, 2, 38, 2),
    Sketcher.Constraint("Vertical", 11, 2, 40, 2),
    Sketcher.Constraint("Vertical", 15, 2, 42, 2),
    Sketcher.Constraint("Vertical", 55, 2, 56, 2),
    Sketcher.Constraint("Vertical", 54, 2, 57, 2),
    Sketcher.Constraint("Vertical", 52, 2, 59, 2),
    Sketcher.Constraint("Vertical", 46, 2, 62, 2),
    Sketcher.Constraint("Vertical", 49, 2, 64, 2),
    Sketcher.Constraint("Vertical", 48, 2, 66, 2),
    Sketcher.Constraint("Equal", 9, 10),
    Sketcher.Constraint("Equal", 7, 12),
    Sketcher.Constraint("Equal", 23, 25),
    Sketcher.Constraint("Equal", 38, 47),
    Sketcher.Constraint("Equal", 49, 51),
    Sketcher.Constraint("Equal", 47, 53),
    Sketcher.Constraint("Equal", 66, 4),
    Sketcher.Constraint("Equal", 62, 8),
    Sketcher.Constraint("Equal", 18, 20),
    Sketcher.Constraint("Equal", 15, 32),
    Sketcher.Constraint("Diameter", 0, 3.0),
    Sketcher.Constraint("DistanceX", 5, 1, 5, 2, 3.0),
    Sketcher.Constraint("DistanceX", 7, 1, 7, 2, 10.0),
    Sketcher.Constraint("DistanceX", 17, 1, 17, 2, 8.0),
    Sketcher.Constraint("DistanceX", 4, 2, -1, 1, 155.0),
    Sketcher.Constraint("DistanceY", 4, 2, -1, 1, 139.0),
    Sketcher.Constraint("DistanceX", 10, 2, -1, 1, 117.0),
    Sketcher.Constraint("DistanceY", 20, 2, -1, 1, 193.0),
    Sketcher.Constraint("DistanceX", -1, 1, 50, 2, 180.0),
    Sketcher.Constraint("DistanceX", 0, 3, -1, 1, 129.5),
    Sketcher.Constraint("DistanceY", 0, 3, -1, 1, 134.8),
    Sketcher.Constraint("DistanceY", 1, 3, -1, 1, 187.2),
    Sketcher.Constraint("DistanceX", -1, 1, 2, 3, 167.5),
    Sketcher.Constraint("DistanceX", 16, 2, -1, 1, 133.5),
    Sketcher.Constraint("DistanceX", -1, 1, 24, 2, 163.5),
])
sketch6.setExpression("Constraints[187]", "Params.sketch6_diameter")
sketch6.setExpression("Constraints[188]", "Params.sketch6_width")
sketch6.setExpression("Constraints[189]", "Params.sketch6_width2")
sketch6.setExpression("Constraints[190]", "Params.sketch6_width3")
pocket5 = body.newObject("PartDesign::Pocket", "Pocket004")
pocket5.Profile = sketch6
pocket5.setExpression("Length", "Params.pocket5_length")

sketch7 = body.newObject("Sketcher::SketchObject", "Sketch006")
sketch7.AttachmentSupport = (doc.getObject("XY_Plane"), [""])
sketch7.MapMode = "FlatFace"
sketch7.AttachmentOffset = App.Placement(Vector(0, 0, 3), App.Rotation())
sketch7.addGeometry(Part.Circle(Vector(-190, 166.5, 0), Vector(0, 0, 1), 1.5), False)
sketch7.addGeometry(Part.Circle(Vector(-169, 166.5, 0), Vector(0, 0, 1), 1.5), False)
add_polygon(sketch7, [(-194, 185.5), (-194, 180.5), (-186, 180.5), (-186, 185.5)])
add_polygon(sketch7, [(-173, 185.5), (-173, 180.5), (-165, 180.5), (-165, 185.5)])
add_polygon(sketch7, [(-194, 152.5), (-194, 147.5), (-186, 147.5), (-186, 152.5)])
add_polygon(sketch7, [(-173, 152.5), (-173, 147.5), (-165, 147.5), (-165, 152.5)])
sketch7.addConstraint([
    Sketcher.Constraint("Vertical", 2),
    Sketcher.Constraint("Horizontal", 3),
    Sketcher.Constraint("Vertical", 4),
    Sketcher.Constraint("Horizontal", 5),
    Sketcher.Constraint("Vertical", 6),
    Sketcher.Constraint("Horizontal", 7),
    Sketcher.Constraint("Vertical", 8),
    Sketcher.Constraint("Horizontal", 9),
    Sketcher.Constraint("Vertical", 10),
    Sketcher.Constraint("Horizontal", 11),
    Sketcher.Constraint("Vertical", 12),
    Sketcher.Constraint("Horizontal", 13),
    Sketcher.Constraint("Vertical", 14),
    Sketcher.Constraint("Horizontal", 15),
    Sketcher.Constraint("Vertical", 16),
    Sketcher.Constraint("Horizontal", 17),
    Sketcher.Constraint("Equal", 0, 1),
    Sketcher.Constraint("Horizontal", 0, 3, 1, 3),
    Sketcher.Constraint("Horizontal", 3, 2, 6, 2),
    Sketcher.Constraint("Horizontal", 5, 2, 8, 2),
    Sketcher.Constraint("Horizontal", 11, 2, 14, 2),
    Sketcher.Constraint("Horizontal", 13, 2, 16, 2),
    Sketcher.Constraint("Vertical", 5, 2, 10, 2),
    Sketcher.Constraint("Vertical", 4, 2, 11, 2),
    Sketcher.Constraint("Vertical", 9, 2, 14, 2),
    Sketcher.Constraint("Vertical", 8, 2, 15, 2),
    Sketcher.Constraint("Equal", 5, 7),
    Sketcher.Constraint("Equal", 8, 10),
    Sketcher.Constraint("Diameter", 0, 3.0),
    Sketcher.Constraint("DistanceX", 3, 1, 3, 2, 8.0),
    Sketcher.Constraint("DistanceY", 2, 2, 2, 1, 5.0),
    Sketcher.Constraint("DistanceX", 0, 3, -1, 1, 190.0),
    Sketcher.Constraint("DistanceX", 1, 3, -1, 1, 169.0),
    Sketcher.Constraint("DistanceX", 2, 2, -1, 1, 194.0),
    Sketcher.Constraint("DistanceX", 6, 2, -1, 1, 173.0),
    Sketcher.Constraint("DistanceY", 0, 3, 2, 2, 14.0),
    Sketcher.Constraint("DistanceY", 10, 2, 0, 3, 19.0),
    Sketcher.Constraint("DistanceY", -1, 1, 0, 3, 166.5),
])
sketch7.setExpression("Constraints[44]", "Params.sketch7_diameter")
sketch7.setExpression("Constraints[45]", "Params.sketch7_width")
sketch7.setExpression("Constraints[46]", "Params.sketch7_height")
pocket6 = body.newObject("PartDesign::Pocket", "Pocket005")
pocket6.Profile = sketch7
pocket6.setExpression("Length", "Params.pocket6_length")

sketch8 = body.newObject("Sketcher::SketchObject", "Sketch007")
sketch8.AttachmentSupport = (doc.getObject("XY_Plane"), [""])
sketch8.MapMode = "FlatFace"
sketch8.AttachmentOffset = App.Placement(Vector(0, 0, 3), App.Rotation())
sketch8.addGeometry(Part.Circle(Vector(-100, -126.3, 0), Vector(0, 0, 1), 1.5), False)
sketch8.addGeometry(Part.Circle(Vector(-100, -187.2, 0), Vector(0, 0, 1), 1.5), False)
sketch8.addGeometry(Part.Circle(Vector(138, -126.3, 0), Vector(0, 0, 1), 1.5), False)
sketch8.addGeometry(Part.Circle(Vector(138, -187.2, 0), Vector(0, 0, 1), 1.5), False)
add_polygon(sketch8, [(-104, -120.5), (-104, -123.5), (-96, -123.5), (-96, -120.5)])
add_polygon(sketch8, [(-104, -190), (-104, -193), (-96, -193), (-96, -190)])
add_polygon(sketch8, [(134, -120.5), (134, -123.5), (142, -123.5), (142, -120.5)])
add_polygon(sketch8, [(134, -190), (134, -193), (142, -193), (142, -190)])
sketch8.addConstraint([
    Sketcher.Constraint("Vertical", 4),
    Sketcher.Constraint("Horizontal", 5),
    Sketcher.Constraint("Vertical", 6),
    Sketcher.Constraint("Horizontal", 7),
    Sketcher.Constraint("Vertical", 8),
    Sketcher.Constraint("Horizontal", 9),
    Sketcher.Constraint("Vertical", 10),
    Sketcher.Constraint("Horizontal", 11),
    Sketcher.Constraint("Vertical", 12),
    Sketcher.Constraint("Horizontal", 13),
    Sketcher.Constraint("Vertical", 14),
    Sketcher.Constraint("Horizontal", 15),
    Sketcher.Constraint("Vertical", 16),
    Sketcher.Constraint("Horizontal", 17),
    Sketcher.Constraint("Vertical", 18),
    Sketcher.Constraint("Horizontal", 19),
    Sketcher.Constraint("Equal", 0, 1),
    Sketcher.Constraint("Equal", 1, 2),
    Sketcher.Constraint("Equal", 2, 3),
    Sketcher.Constraint("Horizontal", 0, 3, 2, 3),
    Sketcher.Constraint("Horizontal", 1, 3, 3, 3),
    Sketcher.Constraint("Horizontal", 5, 2, 12, 2),
    Sketcher.Constraint("Horizontal", 7, 2, 14, 2),
    Sketcher.Constraint("Horizontal", 9, 2, 16, 2),
    Sketcher.Constraint("Horizontal", 11, 2, 18, 2),
    Sketcher.Constraint("Vertical", 0, 3, 1, 3),
    Sketcher.Constraint("Vertical", 2, 3, 3, 3),
    Sketcher.Constraint("Vertical", 7, 2, 8, 2),
    Sketcher.Constraint("Vertical", 6, 2, 9, 2),
    Sketcher.Constraint("Vertical", 15, 2, 16, 2),
    Sketcher.Constraint("Vertical", 14, 2, 17, 2),
    Sketcher.Constraint("Equal", 11, 13),
    Sketcher.Constraint("Equal", 6, 8),
    Sketcher.Constraint("Diameter", 0, 3.0),
    Sketcher.Constraint("DistanceX", 5, 1, 5, 2, 8.0),
    Sketcher.Constraint("DistanceY", 4, 2, 4, 1, 3.0),
    Sketcher.Constraint("DistanceX", 0, 3, -1, 1, 100.0),
    Sketcher.Constraint("DistanceX", -1, 1, 2, 3, 138.0),
    Sketcher.Constraint("DistanceX", 4, 2, -1, 1, 104.0),
    Sketcher.Constraint("DistanceY", 8, 2, -1, 1, 193.0),
    Sketcher.Constraint("DistanceX", -1, 1, 12, 2, 134.0),
    Sketcher.Constraint("DistanceY", 0, 3, -1, 1, 126.3),
    Sketcher.Constraint("DistanceY", 1, 3, -1, 1, 187.2),
    Sketcher.Constraint("DistanceY", 4, 2, -1, 1, 123.5),
])
sketch8.setExpression("Constraints[49]", "Params.sketch8_diameter")
sketch8.setExpression("Constraints[50]", "Params.sketch8_width")
sketch8.setExpression("Constraints[51]", "Params.sketch8_height")
pocket7 = body.newObject("PartDesign::Pocket", "Pocket006")
pocket7.Profile = sketch8
pocket7.setExpression("Length", "Params.pocket7_length")

sketch9 = body.newObject("Sketcher::SketchObject", "Sketch008")
sketch9.AttachmentSupport = (doc.getObject("XY_Plane"), [""])
sketch9.MapMode = "FlatFace"
sketch9.AttachmentOffset = App.Placement(Vector(0, 0, 3), App.Rotation())
sketch9.addGeometry([
    Part.Circle(Vector(-84, -176, 0), Vector(0, 0, 1), 1.5),
    Part.Circle(Vector(-59, -176, 0), Vector(0, 0, 1), 1.5),
    Part.Circle(Vector(97, -176, 0), Vector(0, 0, 1), 1.5),
    Part.Circle(Vector(122, -176, 0), Vector(0, 0, 1), 1.5),
], False)
sketch9.addConstraint([
    Sketcher.Constraint("Equal", 0, 1),
    Sketcher.Constraint("Equal", 1, 2),
    Sketcher.Constraint("Equal", 2, 3),
    Sketcher.Constraint("Horizontal", 0, 3, 1, 3),
    Sketcher.Constraint("Horizontal", 1, 3, 2, 3),
    Sketcher.Constraint("Horizontal", 2, 3, 3, 3),
    Sketcher.Constraint("Diameter", 0, 3.0),
    Sketcher.Constraint("DistanceX", 0, 3, -1, 1, 84.0),
    Sketcher.Constraint("DistanceY", 0, 3, -1, 1, 176.0),
    Sketcher.Constraint("DistanceX", 1, 3, -1, 1, 59.0),
    Sketcher.Constraint("DistanceX", -1, 1, 2, 3, 97.0),
    Sketcher.Constraint("DistanceX", -1, 1, 3, 3, 122.0),
])
sketch9.setExpression("Constraints[6]", "Params.sketch9_diameter")
pocket8 = body.newObject("PartDesign::Pocket", "Pocket007")
pocket8.Profile = sketch9
pocket8.setExpression("Length", "Params.pocket8_length")

doc.recompute()
